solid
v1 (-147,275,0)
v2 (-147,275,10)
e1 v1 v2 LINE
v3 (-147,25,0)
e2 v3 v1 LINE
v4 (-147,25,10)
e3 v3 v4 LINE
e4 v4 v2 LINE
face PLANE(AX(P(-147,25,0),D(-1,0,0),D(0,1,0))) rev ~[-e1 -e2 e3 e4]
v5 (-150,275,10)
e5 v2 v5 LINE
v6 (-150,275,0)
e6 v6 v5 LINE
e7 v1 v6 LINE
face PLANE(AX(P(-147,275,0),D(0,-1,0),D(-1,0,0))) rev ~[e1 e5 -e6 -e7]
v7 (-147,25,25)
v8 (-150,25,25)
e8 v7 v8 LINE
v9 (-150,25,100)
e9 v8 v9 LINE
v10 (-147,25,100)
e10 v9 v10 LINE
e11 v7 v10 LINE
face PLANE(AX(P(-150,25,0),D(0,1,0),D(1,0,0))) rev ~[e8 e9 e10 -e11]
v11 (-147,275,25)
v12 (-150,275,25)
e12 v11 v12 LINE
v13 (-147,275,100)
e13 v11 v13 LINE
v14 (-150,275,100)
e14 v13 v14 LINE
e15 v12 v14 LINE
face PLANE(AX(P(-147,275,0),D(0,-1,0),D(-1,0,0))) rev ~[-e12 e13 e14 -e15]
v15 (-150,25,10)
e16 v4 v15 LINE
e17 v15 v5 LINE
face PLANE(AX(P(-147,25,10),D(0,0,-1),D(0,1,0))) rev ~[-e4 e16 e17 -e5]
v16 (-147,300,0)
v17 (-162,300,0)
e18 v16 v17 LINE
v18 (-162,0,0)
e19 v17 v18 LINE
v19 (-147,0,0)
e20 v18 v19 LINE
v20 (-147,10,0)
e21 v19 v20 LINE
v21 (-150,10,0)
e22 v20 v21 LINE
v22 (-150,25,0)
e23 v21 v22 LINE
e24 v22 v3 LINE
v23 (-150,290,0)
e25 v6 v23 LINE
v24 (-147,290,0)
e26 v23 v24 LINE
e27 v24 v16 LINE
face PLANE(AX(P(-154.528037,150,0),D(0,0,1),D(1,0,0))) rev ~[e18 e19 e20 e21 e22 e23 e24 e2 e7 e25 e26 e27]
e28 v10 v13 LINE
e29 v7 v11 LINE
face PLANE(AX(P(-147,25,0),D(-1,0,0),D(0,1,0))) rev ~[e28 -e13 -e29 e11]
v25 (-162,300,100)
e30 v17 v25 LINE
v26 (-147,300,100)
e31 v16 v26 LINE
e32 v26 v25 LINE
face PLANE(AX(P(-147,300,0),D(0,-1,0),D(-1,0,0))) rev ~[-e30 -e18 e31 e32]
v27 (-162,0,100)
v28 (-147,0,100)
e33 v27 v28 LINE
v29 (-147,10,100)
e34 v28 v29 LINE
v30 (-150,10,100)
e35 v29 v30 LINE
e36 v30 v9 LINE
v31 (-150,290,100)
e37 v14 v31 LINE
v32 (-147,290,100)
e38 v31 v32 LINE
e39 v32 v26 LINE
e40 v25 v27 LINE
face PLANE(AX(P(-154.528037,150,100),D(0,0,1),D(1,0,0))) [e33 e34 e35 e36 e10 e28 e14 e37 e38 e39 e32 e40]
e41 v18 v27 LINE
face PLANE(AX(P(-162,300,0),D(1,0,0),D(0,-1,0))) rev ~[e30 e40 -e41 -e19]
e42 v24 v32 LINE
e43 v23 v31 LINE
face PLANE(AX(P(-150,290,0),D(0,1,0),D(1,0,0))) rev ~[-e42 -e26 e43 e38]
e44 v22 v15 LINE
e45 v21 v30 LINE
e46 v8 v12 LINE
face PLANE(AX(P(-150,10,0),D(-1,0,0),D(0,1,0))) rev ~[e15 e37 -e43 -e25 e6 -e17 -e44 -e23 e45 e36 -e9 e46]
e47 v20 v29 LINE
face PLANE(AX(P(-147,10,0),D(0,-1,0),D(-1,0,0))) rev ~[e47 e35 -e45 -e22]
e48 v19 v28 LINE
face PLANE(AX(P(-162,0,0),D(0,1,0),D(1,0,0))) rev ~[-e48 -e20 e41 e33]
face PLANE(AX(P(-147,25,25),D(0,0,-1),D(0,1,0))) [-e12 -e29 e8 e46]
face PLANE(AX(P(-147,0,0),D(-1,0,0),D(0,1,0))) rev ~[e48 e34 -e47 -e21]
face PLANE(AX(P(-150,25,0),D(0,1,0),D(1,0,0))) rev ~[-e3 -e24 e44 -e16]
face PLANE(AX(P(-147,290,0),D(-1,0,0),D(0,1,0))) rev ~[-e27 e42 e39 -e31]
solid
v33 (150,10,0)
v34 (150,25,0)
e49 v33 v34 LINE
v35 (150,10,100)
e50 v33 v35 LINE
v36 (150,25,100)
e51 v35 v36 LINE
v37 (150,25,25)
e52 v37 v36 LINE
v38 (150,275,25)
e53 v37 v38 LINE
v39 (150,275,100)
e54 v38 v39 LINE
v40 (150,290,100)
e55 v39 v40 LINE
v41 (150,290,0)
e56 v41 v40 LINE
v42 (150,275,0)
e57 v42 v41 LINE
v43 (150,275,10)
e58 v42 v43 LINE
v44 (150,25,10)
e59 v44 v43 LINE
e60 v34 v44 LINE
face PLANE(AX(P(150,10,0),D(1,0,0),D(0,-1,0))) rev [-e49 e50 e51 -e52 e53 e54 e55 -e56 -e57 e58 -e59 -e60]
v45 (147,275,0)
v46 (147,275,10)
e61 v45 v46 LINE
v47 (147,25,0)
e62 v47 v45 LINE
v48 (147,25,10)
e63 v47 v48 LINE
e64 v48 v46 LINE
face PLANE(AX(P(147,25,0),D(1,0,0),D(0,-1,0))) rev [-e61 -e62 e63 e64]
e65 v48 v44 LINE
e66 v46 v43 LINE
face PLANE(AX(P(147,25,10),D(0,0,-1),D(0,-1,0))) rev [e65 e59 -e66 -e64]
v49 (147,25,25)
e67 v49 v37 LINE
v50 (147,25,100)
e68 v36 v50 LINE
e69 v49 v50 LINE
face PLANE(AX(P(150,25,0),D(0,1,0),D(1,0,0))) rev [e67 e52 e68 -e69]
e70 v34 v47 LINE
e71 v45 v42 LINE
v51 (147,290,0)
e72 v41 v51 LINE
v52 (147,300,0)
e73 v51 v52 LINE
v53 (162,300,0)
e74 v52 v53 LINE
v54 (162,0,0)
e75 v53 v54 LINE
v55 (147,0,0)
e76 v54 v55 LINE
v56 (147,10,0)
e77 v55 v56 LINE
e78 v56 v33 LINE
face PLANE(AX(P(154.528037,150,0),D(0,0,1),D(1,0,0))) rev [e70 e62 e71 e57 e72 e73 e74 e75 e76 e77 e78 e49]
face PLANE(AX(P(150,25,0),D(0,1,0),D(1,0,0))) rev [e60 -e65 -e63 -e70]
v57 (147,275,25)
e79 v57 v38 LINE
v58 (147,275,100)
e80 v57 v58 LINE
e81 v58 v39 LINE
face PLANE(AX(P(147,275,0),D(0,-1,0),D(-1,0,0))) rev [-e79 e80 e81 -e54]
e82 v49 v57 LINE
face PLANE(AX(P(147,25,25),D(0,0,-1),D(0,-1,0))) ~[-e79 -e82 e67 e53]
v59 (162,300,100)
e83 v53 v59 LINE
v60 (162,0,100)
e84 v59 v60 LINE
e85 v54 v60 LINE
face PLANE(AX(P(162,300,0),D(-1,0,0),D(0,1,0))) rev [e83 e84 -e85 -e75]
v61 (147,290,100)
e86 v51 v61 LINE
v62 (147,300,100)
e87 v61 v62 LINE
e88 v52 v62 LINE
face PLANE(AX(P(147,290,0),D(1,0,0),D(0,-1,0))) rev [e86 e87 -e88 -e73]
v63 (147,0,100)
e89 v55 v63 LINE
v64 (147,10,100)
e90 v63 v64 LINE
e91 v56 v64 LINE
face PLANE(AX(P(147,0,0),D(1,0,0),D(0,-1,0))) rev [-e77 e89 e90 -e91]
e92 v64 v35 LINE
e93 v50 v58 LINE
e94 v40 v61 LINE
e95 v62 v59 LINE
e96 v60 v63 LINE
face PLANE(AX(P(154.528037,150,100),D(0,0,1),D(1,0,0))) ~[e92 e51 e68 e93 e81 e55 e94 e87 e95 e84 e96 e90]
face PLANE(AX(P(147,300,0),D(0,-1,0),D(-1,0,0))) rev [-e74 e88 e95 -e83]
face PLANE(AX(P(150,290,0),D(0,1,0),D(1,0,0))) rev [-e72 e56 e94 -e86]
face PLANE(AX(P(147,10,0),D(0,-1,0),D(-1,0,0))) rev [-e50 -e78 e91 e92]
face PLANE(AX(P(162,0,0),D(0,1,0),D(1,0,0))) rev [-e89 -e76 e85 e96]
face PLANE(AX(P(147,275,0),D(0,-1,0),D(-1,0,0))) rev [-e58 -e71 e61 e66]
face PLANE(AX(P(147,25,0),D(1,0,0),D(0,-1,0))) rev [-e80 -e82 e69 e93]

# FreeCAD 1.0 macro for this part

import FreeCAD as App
import Part
import Sketcher


def add_polygon(sketch, points):
    """Adds a closed chain of lines whose ends are joined by coincident constraints."""
    first, n = sketch.GeometryCount, len(points)
    for a, b in zip(points, points[1:] + points[:1]):
        sketch.addGeometry(Part.LineSegment(App.Vector(*a, 0), App.Vector(*b, 0)), False)
    for i in range(n):
        sketch.addConstraint(Sketcher.Constraint("Coincident", first + i, 2, first + (i + 1) % n, 1))

doc = App.newDocument("Part")
params = doc.addObject("Spreadsheet::Sheet", "Params")
for row, (alias, value) in enumerate([
    ("sketch1_width", "15 mm"),
    ("sketch1_width2", "3 mm"),
    ("sketch1_height", "300 mm"),
    ("sketch1_height2", "10 mm"),
    ("pad1_length", "100 mm"),
    ("sketch2_width", "250 mm"),
    ("sketch2_height", "15 mm"),
    ("pocket1_length", "3 mm"),
], start=1):
    params.set(f"A{row}", alias)
    params.set(f"B{row}", "=" + value)
    params.setAlias(f"B{row}", alias)

body = doc.addObject("PartDesign::Body", "Body")

# Sketch on XY plane
sketch1 = body.newObject("Sketcher::SketchObject", "Sketch")
sketch1.AttachmentSupport = (doc.getObject("XY_Plane"), [""])
sketch1.MapMode = "FlatFace"
add_polygon(sketch1, [(-162, 300), (-162, 0), (-147, 0), (-147, 10), (-150, 10), (-150, 25), (-147, 25), (-147, 275), (-150, 275), (-150, 290), (-147, 290), (-147, 300)])  # lines 0-11
sketch1.addConstraint(Sketcher.Constraint("Vertical", 0))
sketch1.addConstraint(Sketcher.Constraint("Horizontal", 1))
sketch1.addConstraint(Sketcher.Constraint("Vertical", 2))
sketch1.addConstraint(Sketcher.Constraint("Horizontal", 3))
sketch1.addConstraint(Sketcher.Constraint("Vertical", 4))
sketch1.addConstraint(Sketcher.Constraint("Horizontal", 5))
sketch1.addConstraint(Sketcher.Constraint("Vertical", 6))
sketch1.addConstraint(Sketcher.Constraint("Horizontal", 7))
sketch1.addConstraint(Sketcher.Constraint("Vertical", 8))
sketch1.addConstraint(Sketcher.Constraint("Horizontal", 9))
sketch1.addConstraint(Sketcher.Constraint("Vertical", 10))
sketch1.addConstraint(Sketcher.Constraint("Horizontal", 11))
sketch1.addConstraint(Sketcher.Constraint("PointOnObject", 0, 2, -1))
sketch1.addConstraint(Sketcher.Constraint("Vertical", 2, 2, 5, 2))
sketch1.addConstraint(Sketcher.Constraint("Vertical", 4, 2, 7, 2))
sketch1.addConstraint(Sketcher.Constraint("Vertical", 6, 2, 9, 2))
sketch1.addConstraint(Sketcher.Constraint("Equal", 11, 4))
sketch1.addConstraint(Sketcher.Constraint("Equal", 4, 8))
sketch1.addConstraint(Sketcher.Constraint("Equal", 2, 10))
sketch1.addConstraint(Sketcher.Constraint("DistanceX", 1, 1, 1, 2, 15.0))
sketch1.addConstraint(Sketcher.Constraint("DistanceX", 3, 2, 3, 1, 3.0))
sketch1.addConstraint(Sketcher.Constraint("DistanceY", 0, 2, 0, 1, 300.0))
sketch1.addConstraint(Sketcher.Constraint("DistanceY", 2, 1, 2, 2, 10.0))
sketch1.addConstraint(Sketcher.Constraint("DistanceX", 0, 2, -1, 1, 162.0))
sketch1.setExpression("Constraints[31]", "Params.sketch1_width")
sketch1.setExpression("Constraints[32]", "Params.sketch1_width2")
sketch1.setExpression("Constraints[33]", "Params.sketch1_height")
sketch1.setExpression("Constraints[34]", "Params.sketch1_height2")
pad1 = body.newObject("PartDesign::Pad", "Pad")
pad1.Profile = sketch1
pad1.setExpression("Length", "Params.pad1_length")

# Sketch on YZ plane
sketch2 = body.newObject("Sketcher::SketchObject", "Sketch001")
sketch2.AttachmentSupport = (doc.getObject("YZ_Plane"), [""])
sketch2.MapMode = "FlatFace"
sketch2.AttachmentOffset = App.Placement(App.Vector(0, 0, -147), App.Rotation())
add_polygon(sketch2, [(25, 25), (25, 10), (275, 10), (275, 25)])  # lines 0-3
sketch2.addConstraint(Sketcher.Constraint("Vertical", 0))
sketch2.addConstraint(Sketcher.Constraint("Horizontal", 1))
sketch2.addConstraint(Sketcher.Constraint("Vertical", 2))
sketch2.addConstraint(Sketcher.Constraint("Horizontal", 3))
sketch2.addConstraint(Sketcher.Constraint("DistanceX", 1, 1, 1, 2, 250.0))
sketch2.addConstraint(Sketcher.Constraint("DistanceY", 0, 2, 0, 1, 15.0))
sketch2.addConstraint(Sketcher.Constraint("DistanceX", -1, 1, 0, 2, 25.0))
sketch2.addConstraint(Sketcher.Constraint("DistanceY", -1, 1, 0, 2, 10.0))
sketch2.setExpression("Constraints[8]", "Params.sketch2_width")
sketch2.setExpression("Constraints[9]", "Params.sketch2_height")
pocket1 = body.newObject("PartDesign::Pocket", "Pocket")
pocket1.Profile = sketch2
pocket1.setExpression("Length", "Params.pocket1_length")
body2 = doc.addObject("PartDesign::Body", "Body001")
doc.recompute()

mirroring = doc.addObject("Part::Mirroring", "Mirroring")
mirroring.Source = body
mirroring.Base = App.Vector(0, 0, 0)
mirroring.Normal = App.Vector(1, 0, 0)
body2.BaseFeature = mirroring
doc.recompute()
mirroring.Visibility = False

doc.recompute()
